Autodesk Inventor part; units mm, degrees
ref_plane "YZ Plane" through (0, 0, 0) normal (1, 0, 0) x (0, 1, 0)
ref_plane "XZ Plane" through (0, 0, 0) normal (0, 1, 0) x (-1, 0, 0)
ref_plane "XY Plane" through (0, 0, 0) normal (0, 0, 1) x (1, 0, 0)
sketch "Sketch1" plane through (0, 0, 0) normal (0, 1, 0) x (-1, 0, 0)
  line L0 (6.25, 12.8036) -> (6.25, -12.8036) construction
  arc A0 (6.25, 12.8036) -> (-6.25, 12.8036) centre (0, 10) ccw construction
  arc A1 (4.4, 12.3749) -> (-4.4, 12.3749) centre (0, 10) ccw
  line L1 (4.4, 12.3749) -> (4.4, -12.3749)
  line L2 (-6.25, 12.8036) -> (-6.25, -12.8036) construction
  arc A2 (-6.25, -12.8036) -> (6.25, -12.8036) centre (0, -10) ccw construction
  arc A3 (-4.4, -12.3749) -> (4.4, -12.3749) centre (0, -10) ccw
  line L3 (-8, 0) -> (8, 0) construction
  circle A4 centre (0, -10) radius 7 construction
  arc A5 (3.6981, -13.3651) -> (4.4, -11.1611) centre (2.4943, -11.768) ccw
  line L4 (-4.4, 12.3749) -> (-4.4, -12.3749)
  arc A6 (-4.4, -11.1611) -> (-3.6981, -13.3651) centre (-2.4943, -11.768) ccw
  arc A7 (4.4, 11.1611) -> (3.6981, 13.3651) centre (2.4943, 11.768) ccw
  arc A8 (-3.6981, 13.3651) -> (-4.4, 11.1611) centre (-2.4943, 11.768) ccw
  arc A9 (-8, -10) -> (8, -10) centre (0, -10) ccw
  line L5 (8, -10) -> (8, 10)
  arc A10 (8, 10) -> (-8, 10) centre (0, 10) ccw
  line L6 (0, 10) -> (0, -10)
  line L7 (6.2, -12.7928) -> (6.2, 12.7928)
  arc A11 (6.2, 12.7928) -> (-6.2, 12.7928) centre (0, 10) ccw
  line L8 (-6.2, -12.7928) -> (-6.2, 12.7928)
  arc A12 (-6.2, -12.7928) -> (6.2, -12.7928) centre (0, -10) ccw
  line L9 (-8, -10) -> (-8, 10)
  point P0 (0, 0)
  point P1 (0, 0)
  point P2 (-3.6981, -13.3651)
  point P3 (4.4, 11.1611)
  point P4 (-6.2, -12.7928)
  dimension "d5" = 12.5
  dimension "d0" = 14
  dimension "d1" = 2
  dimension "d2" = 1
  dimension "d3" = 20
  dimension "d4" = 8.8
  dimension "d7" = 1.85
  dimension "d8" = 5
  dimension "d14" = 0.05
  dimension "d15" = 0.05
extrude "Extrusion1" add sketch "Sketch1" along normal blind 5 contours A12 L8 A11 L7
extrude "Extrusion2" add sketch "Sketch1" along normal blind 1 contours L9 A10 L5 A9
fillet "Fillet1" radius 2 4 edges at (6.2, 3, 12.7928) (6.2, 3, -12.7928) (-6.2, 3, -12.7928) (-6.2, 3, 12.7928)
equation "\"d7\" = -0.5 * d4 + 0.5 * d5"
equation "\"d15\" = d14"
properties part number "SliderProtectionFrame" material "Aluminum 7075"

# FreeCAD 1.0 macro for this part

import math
import FreeCAD as App
import Part
import Sketcher
from FreeCAD import Vector
Q = App.Units.Quantity


def edges_at(feature, points):
    """Names of the edges that pass closest to the given points."""
    edges = feature.Shape.Edges
    near = lambda p: min(range(len(edges)), key=lambda i: edges[i].distToShape(Part.Vertex(*p))[0])
    return sorted({f"Edge{near(p) + 1}" for p in points})

doc = App.newDocument("Part")
body = doc.addObject("PartDesign::Body", "Body")

# Sketch on XZ plane
sketch1 = doc.addObject("Sketcher::SketchObject", "Sketch")
body.addObject(sketch1)
sketch1.AttachmentSupport = (doc.XZ_Plane, [""])
sketch1.MapMode = "FlatFace"
sketch1.addGeometry([
    Part.ArcOfCircle(Part.Circle(Vector(0, -10, 0), Vector(0, 0, 1), 6.79998), math.radians(-155.75074), math.radians(-24.24926)),  # 0
    Part.LineSegment(Vector(-6.2, -12.7928, 0), Vector(-6.2, 12.7928, 0)),  # 1
    Part.ArcOfCircle(Part.Circle(Vector(0, 10, 0), Vector(0, 0, 1), 6.79998), math.radians(24.24926), math.radians(155.75074)),  # 2
    Part.LineSegment(Vector(6.2, 12.7928, 0), Vector(6.2, -12.7928, 0)),  # 3
    Part.ArcOfCircle(Part.Circle(Vector(-2.4943, 11.768, 0), Vector(0, 0, 1), 2.000005), math.radians(127.006837), math.radians(197.664891)),  # 4
    Part.LineSegment(Vector(-4.4, 11.1611, 0), Vector(-4.4, -11.1611, 0)),  # 5
    Part.ArcOfCircle(Part.Circle(Vector(-2.4943, -11.768, 0), Vector(0, 0, 1), 1.999966), math.radians(162.335109), math.radians(232.993163)),  # 6
    Part.ArcOfCircle(Part.Circle(Vector(0, -10, 0), Vector(0, 0, 1), 5.000015), math.radians(-137.699255), math.radians(-42.300745)),  # 7
    Part.ArcOfCircle(Part.Circle(Vector(2.4943, -11.768, 0), Vector(0, 0, 1), 2.000005), math.radians(-52.993163), math.radians(17.664891)),  # 8
    Part.LineSegment(Vector(4.4, -11.1611, 0), Vector(4.4, 11.1611, 0)),  # 9
    Part.ArcOfCircle(Part.Circle(Vector(2.4943, 11.768, 0), Vector(0, 0, 1), 1.999966), math.radians(-17.664891), math.radians(52.993163)),  # 10
    Part.ArcOfCircle(Part.Circle(Vector(0, 10, 0), Vector(0, 0, 1), 5.000015), math.radians(42.300745), math.radians(137.699255)),  # 11
], False)
sketch1.addConstraint([
    Sketcher.Constraint("Coincident", 0, 1, 1, 1),
    Sketcher.Constraint("Coincident", 1, 2, 2, 2),
    Sketcher.Constraint("Coincident", 2, 1, 3, 1),
    Sketcher.Constraint("Coincident", 3, 2, 0, 2),
    Sketcher.Constraint("Coincident", 4, 2, 5, 1),
    Sketcher.Constraint("Coincident", 5, 2, 6, 1),
    Sketcher.Constraint("Coincident", 6, 2, 7, 1),
    Sketcher.Constraint("Coincident", 7, 2, 8, 1),
    Sketcher.Constraint("Coincident", 8, 2, 9, 1),
    Sketcher.Constraint("Coincident", 9, 2, 10, 1),
    Sketcher.Constraint("Coincident", 10, 2, 11, 1),
    Sketcher.Constraint("Coincident", 11, 2, 4, 1),
    Sketcher.Constraint("Vertical", 1),
    Sketcher.Constraint("Vertical", 3),
    Sketcher.Constraint("Vertical", 5),
    Sketcher.Constraint("Vertical", 9),
    Sketcher.Constraint("Coincident", 7, 3, 0, 3),
    Sketcher.Constraint("Coincident", 11, 3, 2, 3),
    Sketcher.Constraint("Equal", 0, 2),
    Sketcher.Constraint("Equal", 4, 6),
    Sketcher.Constraint("Equal", 6, 8),
    Sketcher.Constraint("Equal", 8, 10),
    Sketcher.Constraint("Equal", 7, 11),
    Sketcher.Constraint("Symmetric", 0, 3, 2, 3, -1, 1),
    Sketcher.Constraint("Symmetric", 4, 3, 8, 3, -1, 1),
    Sketcher.Constraint("Symmetric", 6, 3, 10, 3, -1, 1),
    Sketcher.Constraint("Symmetric", 6, 3, 8, 3, -2),
    Sketcher.Constraint("Symmetric", 1, 2, 2, 1, -2),
    Sketcher.Constraint("Horizontal", 5, 2, 8, 2),
    Sketcher.Constraint("Radius", 4, Q("2 mm")),
    Sketcher.Constraint("Radius", 7, Q("5 mm")),
    Sketcher.Constraint("DistanceY", 0, 3, 2, 3, Q("20 mm")),
    Sketcher.Constraint("Radius", 0, Q("6.8 mm")),
    Sketcher.Constraint("DistanceX", 0, 1, -1, 1, Q("6.2 mm")),
    Sketcher.Constraint("DistanceX", 4, 2, -1, 1, Q("4.4 mm")),
    Sketcher.Constraint("DistanceY", 5, 2, 5, 1, Q("22.3222 mm")),
    Sketcher.Constraint("DistanceY", -1, 1, 4, 3, Q("11.768 mm")),
])
pad1 = doc.addObject("PartDesign::Pad", "Pad")
body.addObject(pad1)
pad1.Profile = sketch1
pad1.Length = 5
pad1.Reversed = True

# Sketch on XZ plane
sketch2 = doc.addObject("Sketcher::SketchObject", "Sketch001")
body.addObject(sketch2)
sketch2.AttachmentSupport = (doc.XZ_Plane, [""])
sketch2.MapMode = "FlatFace"
sketch2.addGeometry([
    Part.LineSegment(Vector(8, 10, 0), Vector(8, -10, 0)),  # 0
    Part.ArcOfCircle(Part.Circle(Vector(0, -10, 0), Vector(0, 0, 1), 8), math.radians(180), math.radians(360)),  # 1
    Part.LineSegment(Vector(-8, -10, 0), Vector(-8, 10, 0)),  # 2
    Part.ArcOfCircle(Part.Circle(Vector(0, 10, 0), Vector(0, 0, 1), 8), math.radians(0), math.radians(180)),  # 3
    Part.LineSegment(Vector(-6.2, 12.7928, 0), Vector(-6.2, -12.7928, 0)),  # 4
    Part.ArcOfCircle(Part.Circle(Vector(0, -10, 0), Vector(0, 0, 1), 6.79998), math.radians(-155.75074), math.radians(-24.24926)),  # 5
    Part.LineSegment(Vector(6.2, -12.7928, 0), Vector(6.2, 12.7928, 0)),  # 6
    Part.ArcOfCircle(Part.Circle(Vector(0, 10, 0), Vector(0, 0, 1), 6.79998), math.radians(24.24926), math.radians(155.75074)),  # 7
], False)
sketch2.addConstraint([
    Sketcher.Constraint("Tangent", 0, 2, 1, 2),
    Sketcher.Constraint("Tangent", 1, 1, 2, 1),
    Sketcher.Constraint("Tangent", 2, 2, 3, 2),
    Sketcher.Constraint("Tangent", 3, 1, 0, 1),
    Sketcher.Constraint("Coincident", 4, 2, 5, 1),
    Sketcher.Constraint("Coincident", 5, 2, 6, 1),
    Sketcher.Constraint("Coincident", 6, 2, 7, 1),
    Sketcher.Constraint("Coincident", 7, 2, 4, 1),
    Sketcher.Constraint("Vertical", 0),
    Sketcher.Constraint("Vertical", 2),
    Sketcher.Constraint("Vertical", 4),
    Sketcher.Constraint("Vertical", 6),
    Sketcher.Constraint("Coincident", 5, 3, 1, 3),
    Sketcher.Constraint("Coincident", 7, 3, 3, 3),
    Sketcher.Constraint("Equal", 5, 7),
    Sketcher.Constraint("Symmetric", 1, 3, 3, 3, -1, 1),
    Sketcher.Constraint("Horizontal", 4, 2, 5, 2),
    Sketcher.Constraint("DistanceY", 0, 2, 0, 1, Q("20 mm")),
    Sketcher.Constraint("Radius", 1, Q("8 mm")),
    Sketcher.Constraint("Radius", 5, Q("6.8 mm")),
    Sketcher.Constraint("DistanceX", 4, 2, -1, 1, Q("6.2 mm")),
])
pad2 = doc.addObject("PartDesign::Pad", "Pad001")
body.addObject(pad2)
pad2.Profile = sketch2
pad2.Length = 1
pad2.Reversed = True
doc.recompute()

fillet = doc.addObject("PartDesign::Fillet", "Fillet")
body.addObject(fillet)
fillet.Base = (pad2, edges_at(pad2, [
    (6.2, 3, 12.793),
    (6.2, 3, -12.793),
    (-6.2, 3, -12.793),
    (-6.2, 3, 12.793),
]))
fillet.Radius = 2

doc.recompute()
